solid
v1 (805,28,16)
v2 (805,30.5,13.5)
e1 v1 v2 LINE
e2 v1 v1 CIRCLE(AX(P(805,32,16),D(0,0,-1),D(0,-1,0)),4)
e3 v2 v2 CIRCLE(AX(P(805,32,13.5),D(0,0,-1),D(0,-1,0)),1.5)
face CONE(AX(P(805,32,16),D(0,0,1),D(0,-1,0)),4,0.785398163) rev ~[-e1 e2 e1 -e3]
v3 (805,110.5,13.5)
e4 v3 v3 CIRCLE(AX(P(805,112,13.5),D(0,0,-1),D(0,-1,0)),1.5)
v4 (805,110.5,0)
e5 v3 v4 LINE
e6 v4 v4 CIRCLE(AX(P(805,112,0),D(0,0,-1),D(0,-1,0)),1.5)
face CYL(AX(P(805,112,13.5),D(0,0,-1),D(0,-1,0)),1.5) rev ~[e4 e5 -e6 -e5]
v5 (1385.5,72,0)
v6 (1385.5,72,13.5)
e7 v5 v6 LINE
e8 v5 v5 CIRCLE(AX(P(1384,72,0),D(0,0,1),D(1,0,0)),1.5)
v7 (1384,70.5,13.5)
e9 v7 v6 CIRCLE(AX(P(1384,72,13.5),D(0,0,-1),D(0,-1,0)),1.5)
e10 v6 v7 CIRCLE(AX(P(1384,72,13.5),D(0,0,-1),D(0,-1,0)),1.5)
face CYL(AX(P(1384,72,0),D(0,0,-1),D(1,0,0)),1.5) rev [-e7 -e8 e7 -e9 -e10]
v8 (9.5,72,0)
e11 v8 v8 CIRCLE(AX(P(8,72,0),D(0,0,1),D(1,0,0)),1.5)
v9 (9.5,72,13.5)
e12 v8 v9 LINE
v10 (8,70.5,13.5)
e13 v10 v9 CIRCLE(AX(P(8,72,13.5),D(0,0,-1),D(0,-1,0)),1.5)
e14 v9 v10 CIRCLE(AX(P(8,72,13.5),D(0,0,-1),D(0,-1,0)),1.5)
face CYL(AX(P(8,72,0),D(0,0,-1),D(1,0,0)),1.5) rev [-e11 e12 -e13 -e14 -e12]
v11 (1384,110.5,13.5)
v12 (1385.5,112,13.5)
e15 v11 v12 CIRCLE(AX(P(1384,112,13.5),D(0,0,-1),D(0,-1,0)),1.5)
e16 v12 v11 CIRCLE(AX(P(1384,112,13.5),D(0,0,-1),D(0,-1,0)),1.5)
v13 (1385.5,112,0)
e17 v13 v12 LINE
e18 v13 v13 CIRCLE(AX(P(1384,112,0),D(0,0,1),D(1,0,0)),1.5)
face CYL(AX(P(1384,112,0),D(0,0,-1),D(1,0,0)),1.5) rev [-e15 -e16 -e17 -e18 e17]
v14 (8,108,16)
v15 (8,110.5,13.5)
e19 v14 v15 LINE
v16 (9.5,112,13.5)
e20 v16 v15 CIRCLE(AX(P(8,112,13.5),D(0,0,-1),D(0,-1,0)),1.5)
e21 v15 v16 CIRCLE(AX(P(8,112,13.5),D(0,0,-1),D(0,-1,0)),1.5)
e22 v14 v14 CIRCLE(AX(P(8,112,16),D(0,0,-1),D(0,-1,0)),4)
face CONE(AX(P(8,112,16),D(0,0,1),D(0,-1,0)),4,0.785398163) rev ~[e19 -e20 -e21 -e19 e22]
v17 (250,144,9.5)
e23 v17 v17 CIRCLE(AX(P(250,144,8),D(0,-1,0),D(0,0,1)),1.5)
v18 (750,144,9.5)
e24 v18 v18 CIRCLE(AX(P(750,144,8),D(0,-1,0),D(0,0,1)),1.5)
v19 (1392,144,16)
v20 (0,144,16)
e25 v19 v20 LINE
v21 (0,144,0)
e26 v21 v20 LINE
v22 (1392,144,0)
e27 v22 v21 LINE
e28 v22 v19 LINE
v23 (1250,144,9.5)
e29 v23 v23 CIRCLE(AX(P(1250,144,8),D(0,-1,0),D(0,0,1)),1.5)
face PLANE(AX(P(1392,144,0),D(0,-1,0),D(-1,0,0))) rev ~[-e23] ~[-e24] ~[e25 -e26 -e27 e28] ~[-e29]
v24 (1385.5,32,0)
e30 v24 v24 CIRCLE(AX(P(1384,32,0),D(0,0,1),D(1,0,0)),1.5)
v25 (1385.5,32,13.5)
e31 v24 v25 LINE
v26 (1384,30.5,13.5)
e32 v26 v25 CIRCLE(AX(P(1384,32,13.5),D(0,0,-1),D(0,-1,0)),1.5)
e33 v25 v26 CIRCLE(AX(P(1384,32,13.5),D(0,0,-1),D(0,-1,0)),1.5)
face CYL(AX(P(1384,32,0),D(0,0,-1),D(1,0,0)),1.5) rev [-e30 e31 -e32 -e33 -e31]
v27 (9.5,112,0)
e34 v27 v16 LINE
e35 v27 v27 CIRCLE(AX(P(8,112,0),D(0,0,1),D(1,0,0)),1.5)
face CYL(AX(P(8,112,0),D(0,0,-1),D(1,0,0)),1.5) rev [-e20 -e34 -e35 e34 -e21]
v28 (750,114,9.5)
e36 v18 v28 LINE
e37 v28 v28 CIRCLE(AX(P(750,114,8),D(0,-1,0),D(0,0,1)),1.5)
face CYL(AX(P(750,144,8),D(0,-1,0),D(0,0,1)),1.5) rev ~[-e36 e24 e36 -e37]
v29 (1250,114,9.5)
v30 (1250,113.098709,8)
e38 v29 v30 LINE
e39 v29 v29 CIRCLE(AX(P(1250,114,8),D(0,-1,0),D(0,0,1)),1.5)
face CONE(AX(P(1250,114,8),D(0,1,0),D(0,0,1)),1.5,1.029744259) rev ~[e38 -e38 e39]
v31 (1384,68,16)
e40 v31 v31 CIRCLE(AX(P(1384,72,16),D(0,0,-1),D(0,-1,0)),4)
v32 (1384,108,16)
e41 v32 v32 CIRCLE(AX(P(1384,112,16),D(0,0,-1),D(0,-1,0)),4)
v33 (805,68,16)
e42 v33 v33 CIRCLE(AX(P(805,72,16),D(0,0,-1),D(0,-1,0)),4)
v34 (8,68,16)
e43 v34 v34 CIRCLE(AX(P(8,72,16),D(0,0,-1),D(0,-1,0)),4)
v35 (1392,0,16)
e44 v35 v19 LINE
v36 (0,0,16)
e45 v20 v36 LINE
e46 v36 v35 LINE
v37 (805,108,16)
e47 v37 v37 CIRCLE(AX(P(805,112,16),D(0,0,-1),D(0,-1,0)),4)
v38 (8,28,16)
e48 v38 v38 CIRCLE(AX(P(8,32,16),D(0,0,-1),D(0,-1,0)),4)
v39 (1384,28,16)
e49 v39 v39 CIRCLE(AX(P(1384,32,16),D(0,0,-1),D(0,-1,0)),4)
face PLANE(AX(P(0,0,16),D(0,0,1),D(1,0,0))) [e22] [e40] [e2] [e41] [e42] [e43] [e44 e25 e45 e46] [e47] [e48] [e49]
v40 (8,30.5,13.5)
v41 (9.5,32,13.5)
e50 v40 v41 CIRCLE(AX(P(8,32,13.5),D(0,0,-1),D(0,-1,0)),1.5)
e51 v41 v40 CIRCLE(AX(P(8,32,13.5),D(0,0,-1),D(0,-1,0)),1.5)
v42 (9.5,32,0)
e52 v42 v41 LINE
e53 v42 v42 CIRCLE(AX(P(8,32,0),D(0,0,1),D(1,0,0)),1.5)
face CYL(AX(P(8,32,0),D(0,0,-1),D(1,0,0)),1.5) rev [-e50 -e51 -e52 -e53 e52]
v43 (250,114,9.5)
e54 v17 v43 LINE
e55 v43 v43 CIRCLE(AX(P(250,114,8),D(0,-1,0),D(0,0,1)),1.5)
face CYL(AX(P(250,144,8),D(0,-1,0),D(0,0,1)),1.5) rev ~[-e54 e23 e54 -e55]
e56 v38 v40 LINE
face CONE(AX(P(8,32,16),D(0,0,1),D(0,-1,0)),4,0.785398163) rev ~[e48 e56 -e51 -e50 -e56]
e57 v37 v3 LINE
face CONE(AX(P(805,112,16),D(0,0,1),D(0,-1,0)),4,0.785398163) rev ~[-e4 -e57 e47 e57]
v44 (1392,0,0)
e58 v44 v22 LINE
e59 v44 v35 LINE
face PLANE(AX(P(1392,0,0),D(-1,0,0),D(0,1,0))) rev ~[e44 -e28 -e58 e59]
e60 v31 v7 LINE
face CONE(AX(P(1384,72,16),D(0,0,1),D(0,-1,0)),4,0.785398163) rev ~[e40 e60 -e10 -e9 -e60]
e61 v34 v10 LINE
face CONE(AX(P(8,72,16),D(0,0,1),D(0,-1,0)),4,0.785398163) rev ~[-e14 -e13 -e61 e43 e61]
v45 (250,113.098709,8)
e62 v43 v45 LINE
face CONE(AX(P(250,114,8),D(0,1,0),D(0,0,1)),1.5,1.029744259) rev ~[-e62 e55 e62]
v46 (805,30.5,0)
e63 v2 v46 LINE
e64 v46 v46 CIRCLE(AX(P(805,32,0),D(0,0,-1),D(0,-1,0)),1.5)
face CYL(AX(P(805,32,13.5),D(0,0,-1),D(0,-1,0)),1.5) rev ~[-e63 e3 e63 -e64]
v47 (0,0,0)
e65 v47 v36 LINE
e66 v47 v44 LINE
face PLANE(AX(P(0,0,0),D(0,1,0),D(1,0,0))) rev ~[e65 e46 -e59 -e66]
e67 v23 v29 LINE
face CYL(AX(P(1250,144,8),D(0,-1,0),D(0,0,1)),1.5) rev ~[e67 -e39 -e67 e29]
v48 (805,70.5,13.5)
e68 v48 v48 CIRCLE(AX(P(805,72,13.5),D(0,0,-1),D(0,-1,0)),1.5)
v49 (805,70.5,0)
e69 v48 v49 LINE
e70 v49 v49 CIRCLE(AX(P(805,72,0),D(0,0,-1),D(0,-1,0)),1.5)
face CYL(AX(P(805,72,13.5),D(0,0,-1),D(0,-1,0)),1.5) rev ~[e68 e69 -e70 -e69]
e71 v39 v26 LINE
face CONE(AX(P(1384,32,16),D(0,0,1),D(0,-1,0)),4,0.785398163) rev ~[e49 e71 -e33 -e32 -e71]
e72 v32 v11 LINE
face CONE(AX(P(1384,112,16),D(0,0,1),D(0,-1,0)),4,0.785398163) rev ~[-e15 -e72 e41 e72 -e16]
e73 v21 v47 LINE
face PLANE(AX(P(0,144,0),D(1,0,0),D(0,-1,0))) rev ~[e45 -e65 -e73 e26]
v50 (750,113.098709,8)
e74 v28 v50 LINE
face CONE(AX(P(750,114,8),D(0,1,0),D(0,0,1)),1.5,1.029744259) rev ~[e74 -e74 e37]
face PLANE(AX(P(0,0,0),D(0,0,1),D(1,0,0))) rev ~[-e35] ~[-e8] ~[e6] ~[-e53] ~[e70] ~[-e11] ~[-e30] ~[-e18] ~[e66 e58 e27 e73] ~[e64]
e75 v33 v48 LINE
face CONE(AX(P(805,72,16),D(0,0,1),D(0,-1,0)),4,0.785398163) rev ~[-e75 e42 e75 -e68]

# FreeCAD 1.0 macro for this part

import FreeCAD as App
import Part
import Sketcher
Q = App.Units.Quantity


def add_polygon(sketch, points):
    """Adds a closed chain of lines whose ends are joined by coincident constraints."""
    first, n = sketch.GeometryCount, len(points)
    for a, b in zip(points, points[1:] + points[:1]):
        sketch.addGeometry(Part.LineSegment(App.Vector(*a, 0), App.Vector(*b, 0)), False)
    for i in range(n):
        sketch.addConstraint(Sketcher.Constraint("Coincident", first + i, 2, first + (i + 1) % n, 1))

doc = App.newDocument("Part")
body = doc.addObject("PartDesign::Body", "Body")

# Sketch on XY plane
sketch1 = body.newObject("Sketcher::SketchObject", "Sketch")
sketch1.AttachmentSupport = (doc.getObject("XY_Plane"), [""])
sketch1.MapMode = "FlatFace"
add_polygon(sketch1, [(0, 144), (0, 0), (1392, 0), (1392, 144)])  # lines 0-3
sketch1.addGeometry(Part.Circle(App.Vector(8, 32, 0), App.Vector(0, 0, 1), 1.5), False)  # 4
sketch1.addGeometry(Part.Circle(App.Vector(1384, 32, 0), App.Vector(0, 0, 1), 1.5), False)  # 5
sketch1.addGeometry(Part.Circle(App.Vector(8, 72, 0), App.Vector(0, 0, 1), 1.5), False)  # 6
sketch1.addGeometry(Part.Circle(App.Vector(8, 112, 0), App.Vector(0, 0, 1), 1.5), False)  # 7
sketch1.addGeometry(Part.Circle(App.Vector(1384, 72, 0), App.Vector(0, 0, 1), 1.5), False)  # 8
sketch1.addGeometry(Part.Circle(App.Vector(1384, 112, 0), App.Vector(0, 0, 1), 1.5), False)  # 9
sketch1.addConstraint([
    Sketcher.Constraint("Vertical", 0),
    Sketcher.Constraint("Horizontal", 1),
    Sketcher.Constraint("Vertical", 2),
    Sketcher.Constraint("Horizontal", 3),
    Sketcher.Constraint("Coincident", 0, 2, -1, 1),
    Sketcher.Constraint("Equal", 4, 5),
    Sketcher.Constraint("Equal", 5, 6),
    Sketcher.Constraint("Equal", 6, 7),
    Sketcher.Constraint("Equal", 7, 8),
    Sketcher.Constraint("Equal", 8, 9),
    Sketcher.Constraint("Horizontal", 4, 3, 5, 3),
    Sketcher.Constraint("Horizontal", 6, 3, 8, 3),
    Sketcher.Constraint("Horizontal", 7, 3, 9, 3),
    Sketcher.Constraint("Vertical", 4, 3, 6, 3),
    Sketcher.Constraint("Vertical", 6, 3, 7, 3),
    Sketcher.Constraint("Vertical", 5, 3, 8, 3),
    Sketcher.Constraint("Vertical", 8, 3, 9, 3),
    Sketcher.Constraint("Diameter", 4, Q("3 mm")),
    Sketcher.Constraint("DistanceX", 1, 1, 1, 2, Q("1392 mm")),
    Sketcher.Constraint("DistanceY", 0, 2, 0, 1, Q("144 mm")),
    Sketcher.Constraint("DistanceX", -1, 1, 4, 3, Q("8 mm")),
    Sketcher.Constraint("DistanceY", 4, 3, 6, 3, Q("40 mm")),
    Sketcher.Constraint("DistanceY", 6, 3, 7, 3, Q("40 mm")),
    Sketcher.Constraint("DistanceX", 5, 3, 1, 2, Q("8 mm")),
    Sketcher.Constraint("DistanceY", -1, 1, 4, 3, Q("32 mm")),
])
pad1 = body.newObject("PartDesign::Pad", "Pad")
pad1.Profile = sketch1
pad1.Length = 16

# Sketch on XY plane
sketch2 = body.newObject("Sketcher::SketchObject", "Sketch001")
sketch2.AttachmentSupport = (doc.getObject("XY_Plane"), [""])
sketch2.MapMode = "FlatFace"
sketch2.AttachmentOffset = App.Placement(App.Vector(0, 0, 16), App.Rotation())
sketch2.addGeometry([
    Part.Circle(App.Vector(1384, 112, 0), App.Vector(0, 0, 1), 1.5),  # 0
    Part.Circle(App.Vector(1384, 72, 0), App.Vector(0, 0, 1), 1.5),  # 1
    Part.Circle(App.Vector(1384, 32, 0), App.Vector(0, 0, 1), 1.5),  # 2
    Part.Circle(App.Vector(8, 72, 0), App.Vector(0, 0, 1), 1.5),  # 3
    Part.Circle(App.Vector(8, 32, 0), App.Vector(0, 0, 1), 1.5),  # 4
    Part.Circle(App.Vector(8, 112, 0), App.Vector(0, 0, 1), 1.5),  # 5
    Part.Circle(App.Vector(805, 32, 0), App.Vector(0, 0, 1), 1.5),  # 6
    Part.Circle(App.Vector(805, 112, 0), App.Vector(0, 0, 1), 1.5),  # 7
    Part.Circle(App.Vector(805, 72, 0), App.Vector(0, 0, 1), 1.5),  # 8
    Part.Circle(App.Vector(805, 112, 0), App.Vector(0, 0, 1), 1.5),  # 9
    Part.Circle(App.Vector(805, 32, 0), App.Vector(0, 0, 1), 1.5),  # 10
    Part.Circle(App.Vector(805, 72, 0), App.Vector(0, 0, 1), 1.5),  # 11
    Part.Circle(App.Vector(805, 112, 0), App.Vector(0, 0, 1), 1.5),  # 12
], False)
sketch2.addConstraint([
    Sketcher.Constraint("Coincident", 9, 3, 7, 3),
    Sketcher.Constraint("Coincident", 10, 3, 6, 3),
    Sketcher.Constraint("Coincident", 11, 3, 8, 3),
    Sketcher.Constraint("Coincident", 12, 3, 7, 3),
    Sketcher.Constraint("Equal", 0, 1),
    Sketcher.Constraint("Equal", 1, 2),
    Sketcher.Constraint("Equal", 2, 3),
    Sketcher.Constraint("Equal", 3, 4),
    Sketcher.Constraint("Equal", 4, 5),
    Sketcher.Constraint("Equal", 5, 6),
    Sketcher.Constraint("Equal", 6, 7),
    Sketcher.Constraint("Equal", 7, 8),
    Sketcher.Constraint("Equal", 8, 9),
    Sketcher.Constraint("Equal", 9, 10),
    Sketcher.Constraint("Equal", 10, 11),
    Sketcher.Constraint("Equal", 11, 12),
    Sketcher.Constraint("Horizontal", 1, 3, 3, 3),
    Sketcher.Constraint("Horizontal", 2, 3, 4, 3),
    Sketcher.Constraint("Horizontal", 0, 3, 5, 3),
    Sketcher.Constraint("Horizontal", 4, 3, 6, 3),
    Sketcher.Constraint("Horizontal", 5, 3, 7, 3),
    Sketcher.Constraint("Horizontal", 3, 3, 8, 3),
    Sketcher.Constraint("Vertical", 0, 3, 1, 3),
    Sketcher.Constraint("Vertical", 1, 3, 2, 3),
    Sketcher.Constraint("Vertical", 3, 3, 4, 3),
    Sketcher.Constraint("Vertical", 4, 3, 5, 3),
    Sketcher.Constraint("Vertical", 6, 3, 7, 3),
    Sketcher.Constraint("Vertical", 7, 3, 8, 3),
    Sketcher.Constraint("Diameter", 0, Q("3 mm")),
    Sketcher.Constraint("DistanceX", -1, 1, 0, 3, Q("1384 mm")),
    Sketcher.Constraint("DistanceY", -1, 1, 0, 3, Q("112 mm")),
    Sketcher.Constraint("DistanceY", -1, 1, 1, 3, Q("72 mm")),
    Sketcher.Constraint("DistanceY", -1, 1, 2, 3, Q("32 mm")),
    Sketcher.Constraint("DistanceX", -1, 1, 3, 3, Q("8 mm")),
    Sketcher.Constraint("DistanceX", -1, 1, 6, 3, Q("805 mm")),
])
doc.recompute()
hole = body.newObject("PartDesign::Hole", "Hole")
hole.Profile = sketch2
hole.ThreadType = "None"
hole.Diameter = 3
hole.DepthType = "ThroughAll"
hole.HoleCutType = "Countersink"
hole.HoleCutDiameter = 8
hole.HoleCutCountersinkAngle = 90

# Sketch on XZ plane
sketch3 = body.newObject("Sketcher::SketchObject", "Sketch002")
sketch3.AttachmentSupport = (doc.getObject("XZ_Plane"), [""])
sketch3.MapMode = "FlatFace"
sketch3.AttachmentOffset = App.Placement(App.Vector(0, 0, -144), App.Rotation())
sketch3.addGeometry([
    Part.Circle(App.Vector(250, 8, 0), App.Vector(0, 0, 1), 1.5),
    Part.Circle(App.Vector(750, 8, 0), App.Vector(0, 0, 1), 1.5),
    Part.Circle(App.Vector(1250, 8, 0), App.Vector(0, 0, 1), 1.5),
], False)
sketch3.addConstraint([
    Sketcher.Constraint("Equal", 0, 1),
    Sketcher.Constraint("Equal", 1, 2),
    Sketcher.Constraint("Horizontal", 0, 3, 1, 3),
    Sketcher.Constraint("Horizontal", 1, 3, 2, 3),
    Sketcher.Constraint("Diameter", 0, Q("3 mm")),
    Sketcher.Constraint("DistanceX", -1, 1, 0, 3, Q("250 mm")),
    Sketcher.Constraint("DistanceY", -1, 1, 0, 3, Q("8 mm")),
    Sketcher.Constraint("DistanceX", -1, 1, 1, 3, Q("750 mm")),
    Sketcher.Constraint("DistanceX", -1, 1, 2, 3, Q("1250 mm")),
])
doc.recompute()
hole2 = body.newObject("PartDesign::Hole", "Hole001")
hole2.Profile = sketch3
hole2.ThreadType = "None"
hole2.Diameter = 3
hole2.DepthType = "Dimension"
hole2.Depth = 30
hole2.DrillPoint = "Angled"
hole2.DrillPointAngle = 118
hole2.Reversed = True

doc.recompute()
